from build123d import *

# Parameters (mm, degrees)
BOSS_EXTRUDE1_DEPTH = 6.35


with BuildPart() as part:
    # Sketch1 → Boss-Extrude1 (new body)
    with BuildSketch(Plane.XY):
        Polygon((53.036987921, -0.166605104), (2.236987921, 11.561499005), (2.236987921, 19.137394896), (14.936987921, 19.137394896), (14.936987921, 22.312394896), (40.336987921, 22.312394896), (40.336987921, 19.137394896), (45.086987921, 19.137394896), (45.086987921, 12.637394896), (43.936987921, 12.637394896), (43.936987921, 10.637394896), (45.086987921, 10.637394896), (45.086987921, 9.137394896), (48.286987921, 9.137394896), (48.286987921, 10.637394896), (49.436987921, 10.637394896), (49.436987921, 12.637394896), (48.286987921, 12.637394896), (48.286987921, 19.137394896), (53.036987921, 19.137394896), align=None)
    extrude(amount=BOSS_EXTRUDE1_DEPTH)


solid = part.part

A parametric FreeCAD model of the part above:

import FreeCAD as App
import Part
import Sketcher
Q = App.Units.Quantity

doc = App.newDocument("Part")
params = doc.addObject("Spreadsheet::Sheet", "Params")
for row, (alias, value) in enumerate([
    ("sketch1_width", "1 in"),
    ("sketch1_width2", "0.5 in"),
    ("sketch1_height", "0.76 in"),
    ("sketch1_height2", "0.125 in"),
    ("pad1_length", "0.25 in"),
], start=1):
    params.set(f"A{row}", alias)
    params.set(f"B{row}", "=" + value)
    params.setAlias(f"B{row}", alias)

body = doc.addObject("PartDesign::Body", "Body")

# Sketch on XY plane
sketch1 = body.newObject("Sketcher::SketchObject", "Sketch")
sketch1.AttachmentSupport = (doc.getObject("XY_Plane"), [""])
sketch1.MapMode = "FlatFace"
sketch1.addGeometry([
    Part.LineSegment(App.Vector(2.2, 11.6, 0), App.Vector(53, -0.2, 0)),  # 0
    Part.LineSegment(App.Vector(53, -0.2, 0), App.Vector(53, 19.1, 0)),  # 1
    Part.LineSegment(App.Vector(53, 19.1, 0), App.Vector(48.3, 19.1, 0)),  # 2
    Part.LineSegment(App.Vector(48.3, 19.1, 0), App.Vector(48.3, 12.6, 0)),  # 3
    Part.LineSegment(App.Vector(48.3, 12.6, 0), App.Vector(49.4, 12.6, 0)),  # 4
    Part.LineSegment(App.Vector(49.4, 12.6, 0), App.Vector(49.4, 10.6, 0)),  # 5
    Part.LineSegment(App.Vector(49.4, 10.6, 0), App.Vector(48.3, 10.6, 0)),  # 6
    Part.LineSegment(App.Vector(48.3, 10.6, 0), App.Vector(48.3, 9.1, 0)),  # 7
    Part.LineSegment(App.Vector(48.3, 9.1, 0), App.Vector(45.1, 9.1, 0)),  # 8
    Part.LineSegment(App.Vector(45.1, 9.1, 0), App.Vector(45.1, 10.6, 0)),  # 9
    Part.LineSegment(App.Vector(45.1, 10.6, 0), App.Vector(43.9, 10.6, 0)),  # 10
    Part.LineSegment(App.Vector(43.9, 10.6, 0), App.Vector(43.9, 12.6, 0)),  # 11
    Part.LineSegment(App.Vector(43.9, 12.6, 0), App.Vector(45.1, 12.6, 0)),  # 12
    Part.LineSegment(App.Vector(45.1, 12.6, 0), App.Vector(45.1, 19.1, 0)),  # 13
    Part.LineSegment(App.Vector(45.1, 19.1, 0), App.Vector(40.3, 19.1, 0)),  # 14
    Part.LineSegment(App.Vector(40.3, 19.1, 0), App.Vector(40.3, 22.3, 0)),  # 15
    Part.LineSegment(App.Vector(40.3, 22.3, 0), App.Vector(14.9, 22.3, 0)),  # 16
    Part.LineSegment(App.Vector(14.9, 22.3, 0), App.Vector(14.9, 19.1, 0)),  # 17
    Part.LineSegment(App.Vector(14.9, 19.1, 0), App.Vector(2.2, 19.1, 0)),  # 18
    Part.LineSegment(App.Vector(2.2, 19.1, 0), App.Vector(2.2, 11.6, 0)),  # 19
], False)
sketch1.addConstraint([
    Sketcher.Constraint("Coincident", 0, 2, 1, 1),
    Sketcher.Constraint("Coincident", 1, 2, 2, 1),
    Sketcher.Constraint("Coincident", 2, 2, 3, 1),
    Sketcher.Constraint("Coincident", 3, 2, 4, 1),
    Sketcher.Constraint("Coincident", 4, 2, 5, 1),
    Sketcher.Constraint("Coincident", 5, 2, 6, 1),
    Sketcher.Constraint("Coincident", 6, 2, 7, 1),
    Sketcher.Constraint("Coincident", 7, 2, 8, 1),
    Sketcher.Constraint("Coincident", 8, 2, 9, 1),
    Sketcher.Constraint("Coincident", 9, 2, 10, 1),
    Sketcher.Constraint("Coincident", 10, 2, 11, 1),
    Sketcher.Constraint("Coincident", 11, 2, 12, 1),
    Sketcher.Constraint("Coincident", 12, 2, 13, 1),
    Sketcher.Constraint("Coincident", 13, 2, 14, 1),
    Sketcher.Constraint("Coincident", 14, 2, 15, 1),
    Sketcher.Constraint("Coincident", 15, 2, 16, 1),
    Sketcher.Constraint("Coincident", 16, 2, 17, 1),
    Sketcher.Constraint("Coincident", 17, 2, 18, 1),
    Sketcher.Constraint("Coincident", 18, 2, 19, 1),
    Sketcher.Constraint("Coincident", 19, 2, 0, 1),
    Sketcher.Constraint("Vertical", 1),
    Sketcher.Constraint("Horizontal", 2),
    Sketcher.Constraint("Vertical", 3),
    Sketcher.Constraint("Horizontal", 4),
    Sketcher.Constraint("Vertical", 5),
    Sketcher.Constraint("Horizontal", 6),
    Sketcher.Constraint("Vertical", 7),
    Sketcher.Constraint("Horizontal", 8),
    Sketcher.Constraint("Vertical", 9),
    Sketcher.Constraint("Horizontal", 10),
    Sketcher.Constraint("Vertical", 11),
    Sketcher.Constraint("Horizontal", 12),
    Sketcher.Constraint("Vertical", 13),
    Sketcher.Constraint("Horizontal", 14),
    Sketcher.Constraint("Vertical", 15),
    Sketcher.Constraint("Horizontal", 16),
    Sketcher.Constraint("Vertical", 17),
    Sketcher.Constraint("Horizontal", 18),
    Sketcher.Constraint("Vertical", 19),
    Sketcher.Constraint("Horizontal", 6, 2, 9, 2),
    Sketcher.Constraint("Horizontal", 4, 2, 11, 2),
    Sketcher.Constraint("Horizontal", 2, 2, 13, 2),
    Sketcher.Constraint("Horizontal", 14, 2, 17, 2),
    Sketcher.Constraint("Vertical", 3, 2, 6, 2),
    Sketcher.Constraint("Vertical", 9, 2, 12, 2),
    Sketcher.Constraint("Equal", 6, 10),
    Sketcher.Constraint("Equal", 2, 14),
    Sketcher.Constraint("DistanceX", 16, 2, 16, 1, Q("1 in")),
    Sketcher.Constraint("DistanceX", 18, 2, 18, 1, Q("0.5 in")),
    Sketcher.Constraint("Angle", 0, Q("-13 deg")),
    Sketcher.Constraint("DistanceY", 1, 1, 1, 2, Q("0.76 in")),
    Sketcher.Constraint("DistanceY", 15, 1, 15, 2, Q("0.125 in")),
    Sketcher.Constraint("DistanceX", 2, 2, 2, 1, Q("4.75 mm")),
    Sketcher.Constraint("DistanceX", 4, 1, 4, 2, Q("1.15 mm")),
    Sketcher.Constraint("DistanceX", 8, 2, 8, 1, Q("3.2 mm")),
    Sketcher.Constraint("DistanceY", 3, 2, 3, 1, Q("6.5 mm")),
    Sketcher.Constraint("DistanceY", 5, 2, 5, 1, Q("2 mm")),
    Sketcher.Constraint("DistanceY", 7, 2, 7, 1, Q("1.5 mm")),
    Sketcher.Constraint("DistanceY", -1, 1, 19, 2, Q("11.561499 mm")),
    Sketcher.Constraint("DistanceX", -1, 1, 0, 2, Q("53.036988 mm")),
])
sketch1.setExpression("Constraints[47]", "Params.sketch1_width")
sketch1.setExpression("Constraints[48]", "Params.sketch1_width2")
sketch1.setExpression("Constraints[50]", "Params.sketch1_height")
sketch1.setExpression("Constraints[51]", "Params.sketch1_height2")
pad1 = body.newObject("PartDesign::Pad", "Pad")
pad1.Profile = sketch1
pad1.setExpression("Length", "Params.pad1_length")

doc.recompute()
